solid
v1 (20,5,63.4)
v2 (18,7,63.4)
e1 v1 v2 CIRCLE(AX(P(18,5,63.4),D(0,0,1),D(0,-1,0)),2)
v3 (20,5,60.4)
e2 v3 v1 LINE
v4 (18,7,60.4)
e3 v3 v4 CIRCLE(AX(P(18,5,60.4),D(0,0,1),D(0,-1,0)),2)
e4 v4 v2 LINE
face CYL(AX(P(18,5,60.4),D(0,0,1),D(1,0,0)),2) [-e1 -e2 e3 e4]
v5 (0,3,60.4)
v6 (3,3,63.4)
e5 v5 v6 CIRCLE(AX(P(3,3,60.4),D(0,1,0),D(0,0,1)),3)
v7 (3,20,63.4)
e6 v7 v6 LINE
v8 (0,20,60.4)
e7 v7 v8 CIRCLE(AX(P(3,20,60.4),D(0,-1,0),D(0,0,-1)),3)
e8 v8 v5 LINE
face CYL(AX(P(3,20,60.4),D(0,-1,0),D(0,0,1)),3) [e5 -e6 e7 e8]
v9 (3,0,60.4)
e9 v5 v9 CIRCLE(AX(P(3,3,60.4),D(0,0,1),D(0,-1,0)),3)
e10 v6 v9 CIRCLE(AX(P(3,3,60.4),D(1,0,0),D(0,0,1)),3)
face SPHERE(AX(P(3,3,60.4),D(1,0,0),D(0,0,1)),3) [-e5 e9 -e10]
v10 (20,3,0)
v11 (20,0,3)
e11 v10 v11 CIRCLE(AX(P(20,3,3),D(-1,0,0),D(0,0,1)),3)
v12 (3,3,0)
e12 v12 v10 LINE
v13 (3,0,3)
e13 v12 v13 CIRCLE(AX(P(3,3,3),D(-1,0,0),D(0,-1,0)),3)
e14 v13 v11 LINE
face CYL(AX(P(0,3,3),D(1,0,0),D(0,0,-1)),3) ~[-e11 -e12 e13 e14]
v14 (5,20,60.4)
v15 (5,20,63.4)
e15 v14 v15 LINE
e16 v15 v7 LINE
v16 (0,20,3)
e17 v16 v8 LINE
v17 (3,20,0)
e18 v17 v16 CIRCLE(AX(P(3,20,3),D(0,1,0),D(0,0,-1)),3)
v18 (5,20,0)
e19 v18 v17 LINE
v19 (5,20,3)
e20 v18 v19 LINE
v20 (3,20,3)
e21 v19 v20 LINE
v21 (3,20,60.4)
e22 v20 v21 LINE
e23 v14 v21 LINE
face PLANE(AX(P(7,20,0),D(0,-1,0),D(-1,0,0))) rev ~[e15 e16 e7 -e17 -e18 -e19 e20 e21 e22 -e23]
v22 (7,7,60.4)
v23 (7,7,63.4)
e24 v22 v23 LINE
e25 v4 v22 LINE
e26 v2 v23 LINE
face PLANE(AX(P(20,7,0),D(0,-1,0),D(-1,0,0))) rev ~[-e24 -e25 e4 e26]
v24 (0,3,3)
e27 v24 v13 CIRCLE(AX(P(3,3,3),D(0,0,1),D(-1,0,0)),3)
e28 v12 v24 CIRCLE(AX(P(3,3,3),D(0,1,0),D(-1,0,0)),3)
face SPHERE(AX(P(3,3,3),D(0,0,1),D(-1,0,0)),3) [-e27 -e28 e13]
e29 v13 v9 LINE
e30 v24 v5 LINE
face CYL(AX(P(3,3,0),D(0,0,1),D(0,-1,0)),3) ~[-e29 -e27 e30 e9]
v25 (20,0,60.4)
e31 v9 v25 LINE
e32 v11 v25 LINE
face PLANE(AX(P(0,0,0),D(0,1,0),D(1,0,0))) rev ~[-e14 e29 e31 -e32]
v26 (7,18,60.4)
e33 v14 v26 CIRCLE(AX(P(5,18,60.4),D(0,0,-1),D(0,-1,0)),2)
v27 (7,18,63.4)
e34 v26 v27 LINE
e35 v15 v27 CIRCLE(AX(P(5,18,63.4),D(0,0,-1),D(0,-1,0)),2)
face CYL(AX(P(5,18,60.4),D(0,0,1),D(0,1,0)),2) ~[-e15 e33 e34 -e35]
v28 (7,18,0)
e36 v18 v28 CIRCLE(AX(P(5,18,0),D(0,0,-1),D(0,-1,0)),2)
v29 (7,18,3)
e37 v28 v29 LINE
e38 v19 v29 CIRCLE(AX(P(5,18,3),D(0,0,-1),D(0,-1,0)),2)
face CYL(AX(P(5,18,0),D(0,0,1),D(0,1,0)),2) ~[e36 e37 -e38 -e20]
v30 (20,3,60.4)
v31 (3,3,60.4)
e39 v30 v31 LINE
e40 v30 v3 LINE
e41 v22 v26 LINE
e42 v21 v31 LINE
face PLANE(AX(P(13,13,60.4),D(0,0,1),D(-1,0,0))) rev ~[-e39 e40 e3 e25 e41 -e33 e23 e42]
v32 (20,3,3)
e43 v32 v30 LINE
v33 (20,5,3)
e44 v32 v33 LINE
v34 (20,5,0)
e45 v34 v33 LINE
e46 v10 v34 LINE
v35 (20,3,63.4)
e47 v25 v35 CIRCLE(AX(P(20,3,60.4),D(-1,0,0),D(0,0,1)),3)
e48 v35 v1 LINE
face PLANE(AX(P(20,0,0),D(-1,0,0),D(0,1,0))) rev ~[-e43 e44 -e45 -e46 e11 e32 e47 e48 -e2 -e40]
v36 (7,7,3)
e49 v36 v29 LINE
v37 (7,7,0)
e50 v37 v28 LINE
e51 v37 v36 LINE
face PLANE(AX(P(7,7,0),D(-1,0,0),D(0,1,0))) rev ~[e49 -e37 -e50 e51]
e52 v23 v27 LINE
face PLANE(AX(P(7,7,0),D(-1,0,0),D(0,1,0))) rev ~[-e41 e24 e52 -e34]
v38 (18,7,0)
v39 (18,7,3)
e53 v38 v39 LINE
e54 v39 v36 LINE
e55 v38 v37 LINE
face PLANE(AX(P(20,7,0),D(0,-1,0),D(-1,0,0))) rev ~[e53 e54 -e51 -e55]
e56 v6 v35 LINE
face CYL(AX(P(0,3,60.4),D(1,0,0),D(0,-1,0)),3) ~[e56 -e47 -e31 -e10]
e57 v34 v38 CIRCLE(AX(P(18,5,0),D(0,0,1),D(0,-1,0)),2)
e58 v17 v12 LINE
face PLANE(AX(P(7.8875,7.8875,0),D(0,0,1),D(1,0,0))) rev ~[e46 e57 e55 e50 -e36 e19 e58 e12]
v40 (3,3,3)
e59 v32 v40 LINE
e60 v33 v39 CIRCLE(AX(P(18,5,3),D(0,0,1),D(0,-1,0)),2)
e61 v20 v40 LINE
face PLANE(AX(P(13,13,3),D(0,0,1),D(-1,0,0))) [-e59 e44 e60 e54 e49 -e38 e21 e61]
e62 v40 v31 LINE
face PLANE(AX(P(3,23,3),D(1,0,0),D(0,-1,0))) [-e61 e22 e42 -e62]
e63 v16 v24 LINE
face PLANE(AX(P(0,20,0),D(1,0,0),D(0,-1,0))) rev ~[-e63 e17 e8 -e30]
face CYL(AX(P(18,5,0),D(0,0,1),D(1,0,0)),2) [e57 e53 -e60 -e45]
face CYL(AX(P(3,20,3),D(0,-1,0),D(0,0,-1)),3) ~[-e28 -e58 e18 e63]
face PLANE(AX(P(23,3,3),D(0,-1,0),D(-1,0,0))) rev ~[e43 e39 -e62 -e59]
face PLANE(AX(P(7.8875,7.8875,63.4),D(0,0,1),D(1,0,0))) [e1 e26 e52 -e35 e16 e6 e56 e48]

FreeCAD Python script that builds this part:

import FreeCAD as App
import Part
import Sketcher

V = App.Vector
Q = App.Units.Quantity


def edges_at(feature, points):
    """Names of the edges that pass closest to the given points."""
    edges = feature.Shape.Edges
    near = lambda p: min(range(len(edges)), key=lambda i: edges[i].distToShape(Part.Vertex(*p))[0])
    return sorted({f"Edge{near(p) + 1}" for p in points})

doc = App.newDocument("Part")
body = doc.addObject("PartDesign::Body", "Body")

# Sketch on XY plane
sketch1 = body.newObject("Sketcher::SketchObject", "Sketch")
sketch1.AttachmentSupport = (doc.getObject("XY_Plane"), [""])
sketch1.MapMode = "FlatFace"
sketch1.addGeometry([
    Part.LineSegment(V(0, 0, 0), V(20, 0, 0)),  # 0
    Part.LineSegment(V(20, 0, 0), V(20, 7, 0)),  # 1
    Part.LineSegment(V(20, 7, 0), V(7, 7, 0)),  # 2
    Part.LineSegment(V(7, 7, 0), V(7, 20, 0)),  # 3
    Part.LineSegment(V(7, 20, 0), V(0, 20, 0)),  # 4
    Part.LineSegment(V(0, 20, 0), V(0, 0, 0)),  # 5
], False)
sketch1.addConstraint([
    Sketcher.Constraint("Coincident", 0, 2, 1, 1),
    Sketcher.Constraint("Coincident", 1, 2, 2, 1),
    Sketcher.Constraint("Coincident", 2, 2, 3, 1),
    Sketcher.Constraint("Coincident", 3, 2, 4, 1),
    Sketcher.Constraint("Coincident", 4, 2, 5, 1),
    Sketcher.Constraint("Coincident", 5, 2, 0, 1),
    Sketcher.Constraint("Horizontal", 0),
    Sketcher.Constraint("Vertical", 1),
    Sketcher.Constraint("Horizontal", 2),
    Sketcher.Constraint("Vertical", 3),
    Sketcher.Constraint("Horizontal", 4),
    Sketcher.Constraint("Vertical", 5),
    Sketcher.Constraint("Coincident", 5, 2, -1, 1),
    Sketcher.Constraint("Equal", 4, 1),
    Sketcher.Constraint("Equal", 2, 3),
    Sketcher.Constraint("DistanceX", 0, 1, 0, 2, Q("20 mm")),
    Sketcher.Constraint("DistanceX", 2, 2, 2, 1, Q("13 mm")),
])
pad1 = body.newObject("PartDesign::Pad", "Pad")
pad1.Profile = sketch1
pad1.Length = 63.4

# Sketch on XY plane
sketch2 = body.newObject("Sketcher::SketchObject", "Sketch001")
sketch2.AttachmentSupport = (doc.getObject("XY_Plane"), [""])
sketch2.MapMode = "FlatFace"
sketch2.AttachmentOffset = App.Placement(V(0, 0, 3), App.Rotation())
sketch2.addGeometry([
    Part.LineSegment(V(23, 3, 0), V(23, 23, 0)),
    Part.LineSegment(V(23, 23, 0), V(3, 23, 0)),
    Part.LineSegment(V(3, 23, 0), V(3, 3, 0)),
    Part.LineSegment(V(3, 3, 0), V(23, 3, 0)),
], False)
sketch2.addConstraint([
    Sketcher.Constraint("Coincident", 0, 2, 1, 1),
    Sketcher.Constraint("Coincident", 1, 2, 2, 1),
    Sketcher.Constraint("Coincident", 2, 2, 3, 1),
    Sketcher.Constraint("Coincident", 3, 2, 0, 1),
    Sketcher.Constraint("Vertical", 0),
    Sketcher.Constraint("Horizontal", 1),
    Sketcher.Constraint("Vertical", 2),
    Sketcher.Constraint("Horizontal", 3),
    Sketcher.Constraint("Equal", 3, 0),
    Sketcher.Constraint("DistanceX", 1, 2, 1, 1, Q("20 mm")),
    Sketcher.Constraint("DistanceX", -1, 1, 0, 2, Q("23 mm")),
    Sketcher.Constraint("DistanceY", -1, 1, 0, 2, Q("23 mm")),
])
pocket1 = body.newObject("PartDesign::Pocket", "Pocket")
pocket1.Profile = sketch2
pocket1.Length = 57.4
pocket1.Reversed = True
doc.recompute()

fillet = body.newObject("PartDesign::Fillet", "Fillet")
fillet.Base = (pocket1, edges_at(pocket1, [
    (7, 20, 61.9),
    (20, 7, 61.9),
    (7, 20, 1.5),
    (20, 7, 1.5),
]))
fillet.Radius = 2
doc.recompute()

fillet2 = body.newObject("PartDesign::Fillet", "Fillet001")
fillet2.Base = (fillet, edges_at(fillet, [
    (10, 0, 63.4),
    (0, 10, 63.4),
    (0, 0, 31.7),
    (0, 10, 0),
    (10, 0, 0),
]))
fillet2.Radius = 3

doc.recompute()
